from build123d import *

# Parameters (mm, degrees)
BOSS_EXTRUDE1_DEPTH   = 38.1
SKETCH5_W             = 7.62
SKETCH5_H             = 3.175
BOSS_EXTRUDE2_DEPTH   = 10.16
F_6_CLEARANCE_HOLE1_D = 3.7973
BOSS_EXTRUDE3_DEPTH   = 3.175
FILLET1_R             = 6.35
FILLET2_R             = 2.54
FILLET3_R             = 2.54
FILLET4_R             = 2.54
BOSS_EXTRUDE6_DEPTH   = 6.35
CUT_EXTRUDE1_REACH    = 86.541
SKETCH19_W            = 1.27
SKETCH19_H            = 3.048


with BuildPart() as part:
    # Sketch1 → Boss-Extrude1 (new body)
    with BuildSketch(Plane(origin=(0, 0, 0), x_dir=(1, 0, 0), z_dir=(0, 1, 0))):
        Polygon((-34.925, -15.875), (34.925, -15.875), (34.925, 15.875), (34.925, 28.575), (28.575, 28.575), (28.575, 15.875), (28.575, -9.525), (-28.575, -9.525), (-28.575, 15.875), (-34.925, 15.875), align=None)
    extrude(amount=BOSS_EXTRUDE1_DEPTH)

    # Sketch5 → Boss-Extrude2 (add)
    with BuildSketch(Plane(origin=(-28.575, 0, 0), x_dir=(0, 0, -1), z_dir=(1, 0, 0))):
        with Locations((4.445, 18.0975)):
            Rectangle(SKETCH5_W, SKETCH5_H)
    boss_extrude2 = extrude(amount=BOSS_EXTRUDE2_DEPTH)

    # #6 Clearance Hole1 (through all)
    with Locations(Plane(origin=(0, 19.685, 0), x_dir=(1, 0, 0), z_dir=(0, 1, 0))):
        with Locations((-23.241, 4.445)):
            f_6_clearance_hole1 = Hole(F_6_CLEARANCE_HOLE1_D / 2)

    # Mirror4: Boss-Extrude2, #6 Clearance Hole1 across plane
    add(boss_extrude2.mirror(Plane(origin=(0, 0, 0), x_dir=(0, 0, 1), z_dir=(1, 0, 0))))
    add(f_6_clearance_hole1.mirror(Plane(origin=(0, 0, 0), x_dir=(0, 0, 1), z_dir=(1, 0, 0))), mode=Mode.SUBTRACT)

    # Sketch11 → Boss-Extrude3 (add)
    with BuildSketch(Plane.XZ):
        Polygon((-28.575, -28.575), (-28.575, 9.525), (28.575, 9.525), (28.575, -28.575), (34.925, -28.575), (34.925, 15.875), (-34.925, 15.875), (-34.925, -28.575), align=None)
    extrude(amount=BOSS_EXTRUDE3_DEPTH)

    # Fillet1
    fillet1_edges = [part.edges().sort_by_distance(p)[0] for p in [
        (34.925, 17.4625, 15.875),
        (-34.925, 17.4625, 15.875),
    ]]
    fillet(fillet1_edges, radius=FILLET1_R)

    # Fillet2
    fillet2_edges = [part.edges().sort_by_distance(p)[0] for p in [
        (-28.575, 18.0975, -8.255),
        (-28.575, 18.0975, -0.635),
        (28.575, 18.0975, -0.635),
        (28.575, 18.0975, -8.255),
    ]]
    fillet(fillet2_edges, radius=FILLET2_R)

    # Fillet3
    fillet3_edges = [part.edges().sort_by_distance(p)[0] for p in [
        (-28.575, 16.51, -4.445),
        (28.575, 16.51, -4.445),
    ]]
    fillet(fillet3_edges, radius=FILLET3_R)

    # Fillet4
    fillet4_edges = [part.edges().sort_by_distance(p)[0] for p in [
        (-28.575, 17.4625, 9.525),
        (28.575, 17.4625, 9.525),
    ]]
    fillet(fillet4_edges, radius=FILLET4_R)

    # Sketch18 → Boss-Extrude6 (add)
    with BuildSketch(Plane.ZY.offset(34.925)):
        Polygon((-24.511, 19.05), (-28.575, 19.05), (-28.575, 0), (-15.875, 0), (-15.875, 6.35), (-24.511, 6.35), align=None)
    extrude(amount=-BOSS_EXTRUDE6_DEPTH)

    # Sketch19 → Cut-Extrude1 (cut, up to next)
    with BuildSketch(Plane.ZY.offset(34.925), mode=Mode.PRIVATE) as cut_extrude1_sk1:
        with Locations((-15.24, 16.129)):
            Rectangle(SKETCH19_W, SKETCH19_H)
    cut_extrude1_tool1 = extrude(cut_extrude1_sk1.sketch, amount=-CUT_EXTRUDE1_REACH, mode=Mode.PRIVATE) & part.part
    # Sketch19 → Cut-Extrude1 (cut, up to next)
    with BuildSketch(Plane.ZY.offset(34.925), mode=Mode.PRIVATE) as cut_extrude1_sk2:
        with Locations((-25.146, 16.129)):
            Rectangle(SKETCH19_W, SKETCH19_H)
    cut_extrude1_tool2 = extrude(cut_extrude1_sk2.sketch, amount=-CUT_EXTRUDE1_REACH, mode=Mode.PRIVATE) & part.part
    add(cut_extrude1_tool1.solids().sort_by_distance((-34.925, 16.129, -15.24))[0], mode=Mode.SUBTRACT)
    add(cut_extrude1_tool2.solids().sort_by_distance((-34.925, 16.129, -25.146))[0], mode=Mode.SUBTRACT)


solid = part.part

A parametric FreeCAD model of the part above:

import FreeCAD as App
import Part
import Sketcher
from FreeCAD import Vector
Q = App.Units.Quantity


def edges_at(feature, points):
    """Names of the edges that pass closest to the given points."""
    edges = feature.Shape.Edges
    near = lambda p: min(range(len(edges)), key=lambda i: edges[i].distToShape(Part.Vertex(*p))[0])
    return sorted({f"Edge{near(p) + 1}" for p in points})

doc = App.newDocument("Part")
body = doc.addObject("PartDesign::Body", "Body")

sketch1 = doc.addObject("Sketcher::SketchObject", "Sketch")
body.addObject(sketch1)
sketch1.AttachmentSupport = (doc.XZ_Plane, [""])
sketch1.MapMode = "FlatFace"
sketch1.addGeometry(Part.LineSegment(Vector(-35, 16, 0), Vector(35, 16, 0)), False)
sketch1.addGeometry(Part.LineSegment(Vector(35, 16, 0), Vector(35, -29, 0)), False)
sketch1.addGeometry(Part.LineSegment(Vector(35, -29, 0), Vector(29, -29, 0)), False)
sketch1.addGeometry(Part.LineSegment(Vector(29, -29, 0), Vector(29, 10, 0)), False)
sketch1.addGeometry(Part.LineSegment(Vector(29, 10, 0), Vector(-29, 10, 0)), False)
sketch1.addGeometry(Part.LineSegment(Vector(-29, 10, 0), Vector(-29, -16, 0)), False)
sketch1.addGeometry(Part.LineSegment(Vector(-29, -16, 0), Vector(-35, -16, 0)), False)
sketch1.addGeometry(Part.LineSegment(Vector(-35, -16, 0), Vector(-35, 16, 0)), False)
sketch1.addConstraint(Sketcher.Constraint("Coincident", 0, 2, 1, 1))
sketch1.addConstraint(Sketcher.Constraint("Coincident", 1, 2, 2, 1))
sketch1.addConstraint(Sketcher.Constraint("Coincident", 2, 2, 3, 1))
sketch1.addConstraint(Sketcher.Constraint("Coincident", 3, 2, 4, 1))
sketch1.addConstraint(Sketcher.Constraint("Coincident", 4, 2, 5, 1))
sketch1.addConstraint(Sketcher.Constraint("Coincident", 5, 2, 6, 1))
sketch1.addConstraint(Sketcher.Constraint("Coincident", 6, 2, 7, 1))
sketch1.addConstraint(Sketcher.Constraint("Coincident", 7, 2, 0, 1))
sketch1.addConstraint(Sketcher.Constraint("Horizontal", 0))
sketch1.addConstraint(Sketcher.Constraint("Vertical", 1))
sketch1.addConstraint(Sketcher.Constraint("Horizontal", 2))
sketch1.addConstraint(Sketcher.Constraint("Vertical", 3))
sketch1.addConstraint(Sketcher.Constraint("Horizontal", 4))
sketch1.addConstraint(Sketcher.Constraint("Vertical", 5))
sketch1.addConstraint(Sketcher.Constraint("Horizontal", 6))
sketch1.addConstraint(Sketcher.Constraint("Vertical", 7))
sketch1.addConstraint(Sketcher.Constraint("Symmetric", 0, 2, 6, 2, -1, 1))
sketch1.addConstraint(Sketcher.Constraint("Equal", 2, 6))
sketch1.addConstraint(Sketcher.Constraint("DistanceY", 5, 2, 5, 1, Q("1 in")))
sketch1.addConstraint(Sketcher.Constraint("DistanceY", 3, 1, 3, 2, Q("1.5 in")))
sketch1.addConstraint(Sketcher.Constraint("DistanceX", 0, 1, 0, 2, Q("2.75 in")))
sketch1.addConstraint(Sketcher.Constraint("DistanceX", 2, 2, 2, 1, Q("0.25 in")))
sketch1.addConstraint(Sketcher.Constraint("DistanceY", 1, 2, 1, 1, Q("1.75 in")))
pad1 = doc.addObject("PartDesign::Pad", "Pad")
body.addObject(pad1)
pad1.Profile = sketch1
pad1.Length = Q("1.5 in")
pad1.Reversed = True

sketch2 = doc.addObject("Sketcher::SketchObject", "Sketch001")
body.addObject(sketch2)
sketch2.AttachmentSupport = (doc.YZ_Plane, [""])
sketch2.MapMode = "FlatFace"
sketch2.AttachmentOffset = App.Placement(Vector(0, 0, -1.125 * 25.4), App.Rotation())
sketch2.addGeometry(Part.LineSegment(Vector(19.7, -0.6, 0), Vector(16.5, -0.6, 0)), False)
sketch2.addGeometry(Part.LineSegment(Vector(16.5, -0.6, 0), Vector(16.5, -8.3, 0)), False)
sketch2.addGeometry(Part.LineSegment(Vector(16.5, -8.3, 0), Vector(19.7, -8.3, 0)), False)
sketch2.addGeometry(Part.LineSegment(Vector(19.7, -8.3, 0), Vector(19.7, -0.6, 0)), False)
sketch2.addConstraint(Sketcher.Constraint("Coincident", 0, 2, 1, 1))
sketch2.addConstraint(Sketcher.Constraint("Coincident", 1, 2, 2, 1))
sketch2.addConstraint(Sketcher.Constraint("Coincident", 2, 2, 3, 1))
sketch2.addConstraint(Sketcher.Constraint("Coincident", 3, 2, 0, 1))
sketch2.addConstraint(Sketcher.Constraint("Horizontal", 0))
sketch2.addConstraint(Sketcher.Constraint("Vertical", 1))
sketch2.addConstraint(Sketcher.Constraint("Horizontal", 2))
sketch2.addConstraint(Sketcher.Constraint("Vertical", 3))
sketch2.addConstraint(Sketcher.Constraint("DistanceY", 1, 2, 1, 1, Q("0.3 in")))
sketch2.addConstraint(Sketcher.Constraint("DistanceX", 0, 2, 0, 1, Q("0.125 in")))
sketch2.addConstraint(Sketcher.Constraint("DistanceX", -1, 1, 0, 2, Q("0.65 in")))
sketch2.addConstraint(Sketcher.Constraint("DistanceY", 0, 2, -1, 1, Q("0.025 in")))
pad2 = doc.addObject("PartDesign::Pad", "Pad001")
body.addObject(pad2)
pad2.Profile = sketch2
pad2.Length = Q("0.4 in")

sketch3 = doc.addObject("Sketcher::SketchObject", "Sketch002")
body.addObject(sketch3)
sketch3.AttachmentSupport = (doc.XZ_Plane, [""])
sketch3.MapMode = "FlatFace"
sketch3.AttachmentOffset = App.Placement(Vector(0, 0, -0.775 * 25.4), App.Rotation())
sketch3.addGeometry(Part.Circle(Vector(-23.2, -4.4, 0), Vector(0, 0, 1), 1.9), False)
sketch3.addConstraint(Sketcher.Constraint("Diameter", 0, Q("0.1495 in")))
sketch3.addConstraint(Sketcher.Constraint("DistanceX", 0, 3, -1, 1, Q("0.915 in")))
sketch3.addConstraint(Sketcher.Constraint("DistanceY", 0, 3, -1, 1, Q("0.175 in")))
doc.recompute()
hole = doc.addObject("PartDesign::Hole", "Hole")
body.addObject(hole)
hole.Profile = sketch3
hole.ThreadType = "None"
hole.Diameter = Q("0.1495 in")
hole.DepthType = "ThroughAll"
hole.Reversed = True
doc.recompute()

mirrored = doc.addObject("PartDesign::Mirrored", "Mirrored")
body.addObject(mirrored)
mirrored.Originals = [pad2, hole]
mirrored.MirrorPlane = (doc.YZ_Plane, [""])
body.Tip = mirrored

sketch4 = doc.addObject("Sketcher::SketchObject", "Sketch003")
body.addObject(sketch4)
sketch4.AttachmentSupport = (doc.XZ_Plane, [""])
sketch4.MapMode = "FlatFace"
sketch4.addGeometry(Part.LineSegment(Vector(-29, -29, 0), Vector(-29, 10, 0)), False)
sketch4.addGeometry(Part.LineSegment(Vector(-29, 10, 0), Vector(29, 10, 0)), False)
sketch4.addGeometry(Part.LineSegment(Vector(29, 10, 0), Vector(29, -29, 0)), False)
sketch4.addGeometry(Part.LineSegment(Vector(29, -29, 0), Vector(35, -29, 0)), False)
sketch4.addGeometry(Part.LineSegment(Vector(35, -29, 0), Vector(35, 16, 0)), False)
sketch4.addGeometry(Part.LineSegment(Vector(35, 16, 0), Vector(-35, 16, 0)), False)
sketch4.addGeometry(Part.LineSegment(Vector(-35, 16, 0), Vector(-35, -29, 0)), False)
sketch4.addGeometry(Part.LineSegment(Vector(-35, -29, 0), Vector(-29, -29, 0)), False)
sketch4.addConstraint(Sketcher.Constraint("Coincident", 0, 2, 1, 1))
sketch4.addConstraint(Sketcher.Constraint("Coincident", 1, 2, 2, 1))
sketch4.addConstraint(Sketcher.Constraint("Coincident", 2, 2, 3, 1))
sketch4.addConstraint(Sketcher.Constraint("Coincident", 3, 2, 4, 1))
sketch4.addConstraint(Sketcher.Constraint("Coincident", 4, 2, 5, 1))
sketch4.addConstraint(Sketcher.Constraint("Coincident", 5, 2, 6, 1))
sketch4.addConstraint(Sketcher.Constraint("Coincident", 6, 2, 7, 1))
sketch4.addConstraint(Sketcher.Constraint("Coincident", 7, 2, 0, 1))
sketch4.addConstraint(Sketcher.Constraint("Vertical", 0))
sketch4.addConstraint(Sketcher.Constraint("Horizontal", 1))
sketch4.addConstraint(Sketcher.Constraint("Vertical", 2))
sketch4.addConstraint(Sketcher.Constraint("Horizontal", 3))
sketch4.addConstraint(Sketcher.Constraint("Vertical", 4))
sketch4.addConstraint(Sketcher.Constraint("Horizontal", 5))
sketch4.addConstraint(Sketcher.Constraint("Vertical", 6))
sketch4.addConstraint(Sketcher.Constraint("Horizontal", 7))
sketch4.addConstraint(Sketcher.Constraint("Symmetric", 3, 2, 6, 2, -2))
sketch4.addConstraint(Sketcher.Constraint("Equal", 3, 7))
sketch4.addConstraint(Sketcher.Constraint("DistanceY", 0, 1, 0, 2, Q("1.5 in")))
sketch4.addConstraint(Sketcher.Constraint("DistanceX", 1, 1, 1, 2, Q("2.25 in")))
sketch4.addConstraint(Sketcher.Constraint("DistanceX", 3, 1, 3, 2, Q("0.25 in")))
sketch4.addConstraint(Sketcher.Constraint("DistanceY", 4, 1, 4, 2, Q("1.75 in")))
sketch4.addConstraint(Sketcher.Constraint("DistanceY", -1, 1, 0, 2, Q("0.375 in")))
pad3 = doc.addObject("PartDesign::Pad", "Pad002")
body.addObject(pad3)
pad3.Profile = sketch4
pad3.Length = Q("0.125 in")
doc.recompute()

fillet = doc.addObject("PartDesign::Fillet", "Fillet")
body.addObject(fillet)
fillet.Base = (pad3, edges_at(pad3, [(34.925, 17.462, 15.875), (-34.925, 17.462, 15.875)]))
fillet.Radius = Q("0.25 in")
doc.recompute()

fillet2 = doc.addObject("PartDesign::Fillet", "Fillet001")
body.addObject(fillet2)
fillet2.Base = (fillet, edges_at(fillet, [
    (-28.575, 18.098, -8.255),
    (-28.575, 18.098, -0.635),
    (28.575, 18.098, -0.635),
    (28.575, 18.098, -8.255),
]))
fillet2.Radius = Q("0.1 in")
doc.recompute()

fillet3 = doc.addObject("PartDesign::Fillet", "Fillet002")
body.addObject(fillet3)
fillet3.Base = (fillet2, edges_at(fillet2, [(-28.575, 16.51, -4.445), (28.575, 16.51, -4.445)]))
fillet3.Radius = Q("0.1 in")
doc.recompute()

fillet4 = doc.addObject("PartDesign::Fillet", "Fillet003")
body.addObject(fillet4)
fillet4.Base = (fillet3, edges_at(fillet3, [(-28.575, 17.462, 9.525), (28.575, 17.462, 9.525)]))
fillet4.Radius = Q("0.1 in")

sketch5 = doc.addObject("Sketcher::SketchObject", "Sketch004")
body.addObject(sketch5)
sketch5.AttachmentSupport = (doc.YZ_Plane, [""])
sketch5.MapMode = "FlatFace"
sketch5.AttachmentOffset = App.Placement(Vector(0, 0, -1.375 * 25.4), App.Rotation())
sketch5.addGeometry(Part.LineSegment(Vector(19.1, -24.5, 0), Vector(19.1, -28.6, 0)), False)
sketch5.addGeometry(Part.LineSegment(Vector(19.1, -28.6, 0), Vector(0, -28.6, 0)), False)
sketch5.addGeometry(Part.LineSegment(Vector(0, -28.6, 0), Vector(0, -15.9, 0)), False)
sketch5.addGeometry(Part.LineSegment(Vector(0, -15.9, 0), Vector(6.3, -15.9, 0)), False)
sketch5.addGeometry(Part.LineSegment(Vector(6.3, -15.9, 0), Vector(6.3, -24.5, 0)), False)
sketch5.addGeometry(Part.LineSegment(Vector(6.3, -24.5, 0), Vector(19.1, -24.5, 0)), False)
sketch5.addConstraint(Sketcher.Constraint("Coincident", 0, 2, 1, 1))
sketch5.addConstraint(Sketcher.Constraint("Coincident", 1, 2, 2, 1))
sketch5.addConstraint(Sketcher.Constraint("Coincident", 2, 2, 3, 1))
sketch5.addConstraint(Sketcher.Constraint("Coincident", 3, 2, 4, 1))
sketch5.addConstraint(Sketcher.Constraint("Coincident", 4, 2, 5, 1))
sketch5.addConstraint(Sketcher.Constraint("Coincident", 5, 2, 0, 1))
sketch5.addConstraint(Sketcher.Constraint("Vertical", 0))
sketch5.addConstraint(Sketcher.Constraint("Horizontal", 1))
sketch5.addConstraint(Sketcher.Constraint("Vertical", 2))
sketch5.addConstraint(Sketcher.Constraint("Horizontal", 3))
sketch5.addConstraint(Sketcher.Constraint("Vertical", 4))
sketch5.addConstraint(Sketcher.Constraint("Horizontal", 5))
sketch5.addConstraint(Sketcher.Constraint("PointOnObject", 1, 2, -2))
sketch5.addConstraint(Sketcher.Constraint("Equal", 5, 2))
sketch5.addConstraint(Sketcher.Constraint("DistanceX", 5, 1, 5, 2, Q("0.5 in")))
sketch5.addConstraint(Sketcher.Constraint("DistanceX", 1, 2, 1, 1, Q("0.75 in")))
sketch5.addConstraint(Sketcher.Constraint("DistanceY", 0, 2, 0, 1, Q("0.16 in")))
sketch5.addConstraint(Sketcher.Constraint("DistanceY", 0, 2, -1, 1, Q("1.125 in")))
pad4 = doc.addObject("PartDesign::Pad", "Pad003")
body.addObject(pad4)
pad4.Profile = sketch5
pad4.Length = Q("0.25 in")

sketch6 = doc.addObject("Sketcher::SketchObject", "Sketch005")
body.addObject(sketch6)
sketch6.AttachmentSupport = (doc.YZ_Plane, [""])
sketch6.MapMode = "FlatFace"
sketch6.AttachmentOffset = App.Placement(Vector(0, 0, -1.375 * 25.4), App.Rotation())
sketch6.addGeometry(Part.LineSegment(Vector(17.7, -15.9, 0), Vector(14.6, -15.9, 0)), False)
sketch6.addGeometry(Part.LineSegment(Vector(14.6, -15.9, 0), Vector(14.6, -14.6, 0)), False)
sketch6.addGeometry(Part.LineSegment(Vector(14.6, -14.6, 0), Vector(17.7, -14.6, 0)), False)
sketch6.addGeometry(Part.LineSegment(Vector(17.7, -14.6, 0), Vector(17.7, -15.9, 0)), False)
sketch6.addConstraint(Sketcher.Constraint("Coincident", 0, 2, 1, 1))
sketch6.addConstraint(Sketcher.Constraint("Coincident", 1, 2, 2, 1))
sketch6.addConstraint(Sketcher.Constraint("Coincident", 2, 2, 3, 1))
sketch6.addConstraint(Sketcher.Constraint("Coincident", 3, 2, 0, 1))
sketch6.addConstraint(Sketcher.Constraint("Horizontal", 0))
sketch6.addConstraint(Sketcher.Constraint("Vertical", 1))
sketch6.addConstraint(Sketcher.Constraint("Horizontal", 2))
sketch6.addConstraint(Sketcher.Constraint("Vertical", 3))
sketch6.addConstraint(Sketcher.Constraint("DistanceX", 0, 2, 0, 1, Q("0.12 in")))
sketch6.addConstraint(Sketcher.Constraint("DistanceY", 1, 1, 1, 2, Q("0.05 in")))
sketch6.addConstraint(Sketcher.Constraint("DistanceX", -1, 1, 0, 2, Q("0.575 in")))
sketch6.addConstraint(Sketcher.Constraint("DistanceY", 0, 2, -1, 1, Q("0.625 in")))
pocket1 = doc.addObject("PartDesign::Pocket", "Pocket")
body.addObject(pocket1)
pocket1.Profile = sketch6
pocket1.Type = "UpToFirst"
pocket1.Reversed = True

sketch7 = doc.addObject("Sketcher::SketchObject", "Sketch006")
body.addObject(sketch7)
sketch7.AttachmentSupport = (doc.YZ_Plane, [""])
sketch7.MapMode = "FlatFace"
sketch7.AttachmentOffset = App.Placement(Vector(0, 0, -1.375 * 25.4), App.Rotation())
sketch7.addGeometry(Part.LineSegment(Vector(17.7, -25.8, 0), Vector(14.6, -25.8, 0)), False)
sketch7.addGeometry(Part.LineSegment(Vector(14.6, -25.8, 0), Vector(14.6, -24.5, 0)), False)
sketch7.addGeometry(Part.LineSegment(Vector(14.6, -24.5, 0), Vector(17.7, -24.5, 0)), False)
sketch7.addGeometry(Part.LineSegment(Vector(17.7, -24.5, 0), Vector(17.7, -25.8, 0)), False)
sketch7.addConstraint(Sketcher.Constraint("Coincident", 0, 2, 1, 1))
sketch7.addConstraint(Sketcher.Constraint("Coincident", 1, 2, 2, 1))
sketch7.addConstraint(Sketcher.Constraint("Coincident", 2, 2, 3, 1))
sketch7.addConstraint(Sketcher.Constraint("Coincident", 3, 2, 0, 1))
sketch7.addConstraint(Sketcher.Constraint("Horizontal", 0))
sketch7.addConstraint(Sketcher.Constraint("Vertical", 1))
sketch7.addConstraint(Sketcher.Constraint("Horizontal", 2))
sketch7.addConstraint(Sketcher.Constraint("Vertical", 3))
sketch7.addConstraint(Sketcher.Constraint("DistanceX", 0, 2, 0, 1, Q("0.12 in")))
sketch7.addConstraint(Sketcher.Constraint("DistanceY", 1, 1, 1, 2, Q("0.05 in")))
sketch7.addConstraint(Sketcher.Constraint("DistanceX", -1, 1, 0, 2, Q("0.575 in")))
sketch7.addConstraint(Sketcher.Constraint("DistanceY", 0, 2, -1, 1, Q("1.015 in")))
pocket2 = doc.addObject("PartDesign::Pocket", "Pocket001")
body.addObject(pocket2)
pocket2.Profile = sketch7
pocket2.Type = "UpToFirst"
pocket2.Reversed = True

doc.recompute()
